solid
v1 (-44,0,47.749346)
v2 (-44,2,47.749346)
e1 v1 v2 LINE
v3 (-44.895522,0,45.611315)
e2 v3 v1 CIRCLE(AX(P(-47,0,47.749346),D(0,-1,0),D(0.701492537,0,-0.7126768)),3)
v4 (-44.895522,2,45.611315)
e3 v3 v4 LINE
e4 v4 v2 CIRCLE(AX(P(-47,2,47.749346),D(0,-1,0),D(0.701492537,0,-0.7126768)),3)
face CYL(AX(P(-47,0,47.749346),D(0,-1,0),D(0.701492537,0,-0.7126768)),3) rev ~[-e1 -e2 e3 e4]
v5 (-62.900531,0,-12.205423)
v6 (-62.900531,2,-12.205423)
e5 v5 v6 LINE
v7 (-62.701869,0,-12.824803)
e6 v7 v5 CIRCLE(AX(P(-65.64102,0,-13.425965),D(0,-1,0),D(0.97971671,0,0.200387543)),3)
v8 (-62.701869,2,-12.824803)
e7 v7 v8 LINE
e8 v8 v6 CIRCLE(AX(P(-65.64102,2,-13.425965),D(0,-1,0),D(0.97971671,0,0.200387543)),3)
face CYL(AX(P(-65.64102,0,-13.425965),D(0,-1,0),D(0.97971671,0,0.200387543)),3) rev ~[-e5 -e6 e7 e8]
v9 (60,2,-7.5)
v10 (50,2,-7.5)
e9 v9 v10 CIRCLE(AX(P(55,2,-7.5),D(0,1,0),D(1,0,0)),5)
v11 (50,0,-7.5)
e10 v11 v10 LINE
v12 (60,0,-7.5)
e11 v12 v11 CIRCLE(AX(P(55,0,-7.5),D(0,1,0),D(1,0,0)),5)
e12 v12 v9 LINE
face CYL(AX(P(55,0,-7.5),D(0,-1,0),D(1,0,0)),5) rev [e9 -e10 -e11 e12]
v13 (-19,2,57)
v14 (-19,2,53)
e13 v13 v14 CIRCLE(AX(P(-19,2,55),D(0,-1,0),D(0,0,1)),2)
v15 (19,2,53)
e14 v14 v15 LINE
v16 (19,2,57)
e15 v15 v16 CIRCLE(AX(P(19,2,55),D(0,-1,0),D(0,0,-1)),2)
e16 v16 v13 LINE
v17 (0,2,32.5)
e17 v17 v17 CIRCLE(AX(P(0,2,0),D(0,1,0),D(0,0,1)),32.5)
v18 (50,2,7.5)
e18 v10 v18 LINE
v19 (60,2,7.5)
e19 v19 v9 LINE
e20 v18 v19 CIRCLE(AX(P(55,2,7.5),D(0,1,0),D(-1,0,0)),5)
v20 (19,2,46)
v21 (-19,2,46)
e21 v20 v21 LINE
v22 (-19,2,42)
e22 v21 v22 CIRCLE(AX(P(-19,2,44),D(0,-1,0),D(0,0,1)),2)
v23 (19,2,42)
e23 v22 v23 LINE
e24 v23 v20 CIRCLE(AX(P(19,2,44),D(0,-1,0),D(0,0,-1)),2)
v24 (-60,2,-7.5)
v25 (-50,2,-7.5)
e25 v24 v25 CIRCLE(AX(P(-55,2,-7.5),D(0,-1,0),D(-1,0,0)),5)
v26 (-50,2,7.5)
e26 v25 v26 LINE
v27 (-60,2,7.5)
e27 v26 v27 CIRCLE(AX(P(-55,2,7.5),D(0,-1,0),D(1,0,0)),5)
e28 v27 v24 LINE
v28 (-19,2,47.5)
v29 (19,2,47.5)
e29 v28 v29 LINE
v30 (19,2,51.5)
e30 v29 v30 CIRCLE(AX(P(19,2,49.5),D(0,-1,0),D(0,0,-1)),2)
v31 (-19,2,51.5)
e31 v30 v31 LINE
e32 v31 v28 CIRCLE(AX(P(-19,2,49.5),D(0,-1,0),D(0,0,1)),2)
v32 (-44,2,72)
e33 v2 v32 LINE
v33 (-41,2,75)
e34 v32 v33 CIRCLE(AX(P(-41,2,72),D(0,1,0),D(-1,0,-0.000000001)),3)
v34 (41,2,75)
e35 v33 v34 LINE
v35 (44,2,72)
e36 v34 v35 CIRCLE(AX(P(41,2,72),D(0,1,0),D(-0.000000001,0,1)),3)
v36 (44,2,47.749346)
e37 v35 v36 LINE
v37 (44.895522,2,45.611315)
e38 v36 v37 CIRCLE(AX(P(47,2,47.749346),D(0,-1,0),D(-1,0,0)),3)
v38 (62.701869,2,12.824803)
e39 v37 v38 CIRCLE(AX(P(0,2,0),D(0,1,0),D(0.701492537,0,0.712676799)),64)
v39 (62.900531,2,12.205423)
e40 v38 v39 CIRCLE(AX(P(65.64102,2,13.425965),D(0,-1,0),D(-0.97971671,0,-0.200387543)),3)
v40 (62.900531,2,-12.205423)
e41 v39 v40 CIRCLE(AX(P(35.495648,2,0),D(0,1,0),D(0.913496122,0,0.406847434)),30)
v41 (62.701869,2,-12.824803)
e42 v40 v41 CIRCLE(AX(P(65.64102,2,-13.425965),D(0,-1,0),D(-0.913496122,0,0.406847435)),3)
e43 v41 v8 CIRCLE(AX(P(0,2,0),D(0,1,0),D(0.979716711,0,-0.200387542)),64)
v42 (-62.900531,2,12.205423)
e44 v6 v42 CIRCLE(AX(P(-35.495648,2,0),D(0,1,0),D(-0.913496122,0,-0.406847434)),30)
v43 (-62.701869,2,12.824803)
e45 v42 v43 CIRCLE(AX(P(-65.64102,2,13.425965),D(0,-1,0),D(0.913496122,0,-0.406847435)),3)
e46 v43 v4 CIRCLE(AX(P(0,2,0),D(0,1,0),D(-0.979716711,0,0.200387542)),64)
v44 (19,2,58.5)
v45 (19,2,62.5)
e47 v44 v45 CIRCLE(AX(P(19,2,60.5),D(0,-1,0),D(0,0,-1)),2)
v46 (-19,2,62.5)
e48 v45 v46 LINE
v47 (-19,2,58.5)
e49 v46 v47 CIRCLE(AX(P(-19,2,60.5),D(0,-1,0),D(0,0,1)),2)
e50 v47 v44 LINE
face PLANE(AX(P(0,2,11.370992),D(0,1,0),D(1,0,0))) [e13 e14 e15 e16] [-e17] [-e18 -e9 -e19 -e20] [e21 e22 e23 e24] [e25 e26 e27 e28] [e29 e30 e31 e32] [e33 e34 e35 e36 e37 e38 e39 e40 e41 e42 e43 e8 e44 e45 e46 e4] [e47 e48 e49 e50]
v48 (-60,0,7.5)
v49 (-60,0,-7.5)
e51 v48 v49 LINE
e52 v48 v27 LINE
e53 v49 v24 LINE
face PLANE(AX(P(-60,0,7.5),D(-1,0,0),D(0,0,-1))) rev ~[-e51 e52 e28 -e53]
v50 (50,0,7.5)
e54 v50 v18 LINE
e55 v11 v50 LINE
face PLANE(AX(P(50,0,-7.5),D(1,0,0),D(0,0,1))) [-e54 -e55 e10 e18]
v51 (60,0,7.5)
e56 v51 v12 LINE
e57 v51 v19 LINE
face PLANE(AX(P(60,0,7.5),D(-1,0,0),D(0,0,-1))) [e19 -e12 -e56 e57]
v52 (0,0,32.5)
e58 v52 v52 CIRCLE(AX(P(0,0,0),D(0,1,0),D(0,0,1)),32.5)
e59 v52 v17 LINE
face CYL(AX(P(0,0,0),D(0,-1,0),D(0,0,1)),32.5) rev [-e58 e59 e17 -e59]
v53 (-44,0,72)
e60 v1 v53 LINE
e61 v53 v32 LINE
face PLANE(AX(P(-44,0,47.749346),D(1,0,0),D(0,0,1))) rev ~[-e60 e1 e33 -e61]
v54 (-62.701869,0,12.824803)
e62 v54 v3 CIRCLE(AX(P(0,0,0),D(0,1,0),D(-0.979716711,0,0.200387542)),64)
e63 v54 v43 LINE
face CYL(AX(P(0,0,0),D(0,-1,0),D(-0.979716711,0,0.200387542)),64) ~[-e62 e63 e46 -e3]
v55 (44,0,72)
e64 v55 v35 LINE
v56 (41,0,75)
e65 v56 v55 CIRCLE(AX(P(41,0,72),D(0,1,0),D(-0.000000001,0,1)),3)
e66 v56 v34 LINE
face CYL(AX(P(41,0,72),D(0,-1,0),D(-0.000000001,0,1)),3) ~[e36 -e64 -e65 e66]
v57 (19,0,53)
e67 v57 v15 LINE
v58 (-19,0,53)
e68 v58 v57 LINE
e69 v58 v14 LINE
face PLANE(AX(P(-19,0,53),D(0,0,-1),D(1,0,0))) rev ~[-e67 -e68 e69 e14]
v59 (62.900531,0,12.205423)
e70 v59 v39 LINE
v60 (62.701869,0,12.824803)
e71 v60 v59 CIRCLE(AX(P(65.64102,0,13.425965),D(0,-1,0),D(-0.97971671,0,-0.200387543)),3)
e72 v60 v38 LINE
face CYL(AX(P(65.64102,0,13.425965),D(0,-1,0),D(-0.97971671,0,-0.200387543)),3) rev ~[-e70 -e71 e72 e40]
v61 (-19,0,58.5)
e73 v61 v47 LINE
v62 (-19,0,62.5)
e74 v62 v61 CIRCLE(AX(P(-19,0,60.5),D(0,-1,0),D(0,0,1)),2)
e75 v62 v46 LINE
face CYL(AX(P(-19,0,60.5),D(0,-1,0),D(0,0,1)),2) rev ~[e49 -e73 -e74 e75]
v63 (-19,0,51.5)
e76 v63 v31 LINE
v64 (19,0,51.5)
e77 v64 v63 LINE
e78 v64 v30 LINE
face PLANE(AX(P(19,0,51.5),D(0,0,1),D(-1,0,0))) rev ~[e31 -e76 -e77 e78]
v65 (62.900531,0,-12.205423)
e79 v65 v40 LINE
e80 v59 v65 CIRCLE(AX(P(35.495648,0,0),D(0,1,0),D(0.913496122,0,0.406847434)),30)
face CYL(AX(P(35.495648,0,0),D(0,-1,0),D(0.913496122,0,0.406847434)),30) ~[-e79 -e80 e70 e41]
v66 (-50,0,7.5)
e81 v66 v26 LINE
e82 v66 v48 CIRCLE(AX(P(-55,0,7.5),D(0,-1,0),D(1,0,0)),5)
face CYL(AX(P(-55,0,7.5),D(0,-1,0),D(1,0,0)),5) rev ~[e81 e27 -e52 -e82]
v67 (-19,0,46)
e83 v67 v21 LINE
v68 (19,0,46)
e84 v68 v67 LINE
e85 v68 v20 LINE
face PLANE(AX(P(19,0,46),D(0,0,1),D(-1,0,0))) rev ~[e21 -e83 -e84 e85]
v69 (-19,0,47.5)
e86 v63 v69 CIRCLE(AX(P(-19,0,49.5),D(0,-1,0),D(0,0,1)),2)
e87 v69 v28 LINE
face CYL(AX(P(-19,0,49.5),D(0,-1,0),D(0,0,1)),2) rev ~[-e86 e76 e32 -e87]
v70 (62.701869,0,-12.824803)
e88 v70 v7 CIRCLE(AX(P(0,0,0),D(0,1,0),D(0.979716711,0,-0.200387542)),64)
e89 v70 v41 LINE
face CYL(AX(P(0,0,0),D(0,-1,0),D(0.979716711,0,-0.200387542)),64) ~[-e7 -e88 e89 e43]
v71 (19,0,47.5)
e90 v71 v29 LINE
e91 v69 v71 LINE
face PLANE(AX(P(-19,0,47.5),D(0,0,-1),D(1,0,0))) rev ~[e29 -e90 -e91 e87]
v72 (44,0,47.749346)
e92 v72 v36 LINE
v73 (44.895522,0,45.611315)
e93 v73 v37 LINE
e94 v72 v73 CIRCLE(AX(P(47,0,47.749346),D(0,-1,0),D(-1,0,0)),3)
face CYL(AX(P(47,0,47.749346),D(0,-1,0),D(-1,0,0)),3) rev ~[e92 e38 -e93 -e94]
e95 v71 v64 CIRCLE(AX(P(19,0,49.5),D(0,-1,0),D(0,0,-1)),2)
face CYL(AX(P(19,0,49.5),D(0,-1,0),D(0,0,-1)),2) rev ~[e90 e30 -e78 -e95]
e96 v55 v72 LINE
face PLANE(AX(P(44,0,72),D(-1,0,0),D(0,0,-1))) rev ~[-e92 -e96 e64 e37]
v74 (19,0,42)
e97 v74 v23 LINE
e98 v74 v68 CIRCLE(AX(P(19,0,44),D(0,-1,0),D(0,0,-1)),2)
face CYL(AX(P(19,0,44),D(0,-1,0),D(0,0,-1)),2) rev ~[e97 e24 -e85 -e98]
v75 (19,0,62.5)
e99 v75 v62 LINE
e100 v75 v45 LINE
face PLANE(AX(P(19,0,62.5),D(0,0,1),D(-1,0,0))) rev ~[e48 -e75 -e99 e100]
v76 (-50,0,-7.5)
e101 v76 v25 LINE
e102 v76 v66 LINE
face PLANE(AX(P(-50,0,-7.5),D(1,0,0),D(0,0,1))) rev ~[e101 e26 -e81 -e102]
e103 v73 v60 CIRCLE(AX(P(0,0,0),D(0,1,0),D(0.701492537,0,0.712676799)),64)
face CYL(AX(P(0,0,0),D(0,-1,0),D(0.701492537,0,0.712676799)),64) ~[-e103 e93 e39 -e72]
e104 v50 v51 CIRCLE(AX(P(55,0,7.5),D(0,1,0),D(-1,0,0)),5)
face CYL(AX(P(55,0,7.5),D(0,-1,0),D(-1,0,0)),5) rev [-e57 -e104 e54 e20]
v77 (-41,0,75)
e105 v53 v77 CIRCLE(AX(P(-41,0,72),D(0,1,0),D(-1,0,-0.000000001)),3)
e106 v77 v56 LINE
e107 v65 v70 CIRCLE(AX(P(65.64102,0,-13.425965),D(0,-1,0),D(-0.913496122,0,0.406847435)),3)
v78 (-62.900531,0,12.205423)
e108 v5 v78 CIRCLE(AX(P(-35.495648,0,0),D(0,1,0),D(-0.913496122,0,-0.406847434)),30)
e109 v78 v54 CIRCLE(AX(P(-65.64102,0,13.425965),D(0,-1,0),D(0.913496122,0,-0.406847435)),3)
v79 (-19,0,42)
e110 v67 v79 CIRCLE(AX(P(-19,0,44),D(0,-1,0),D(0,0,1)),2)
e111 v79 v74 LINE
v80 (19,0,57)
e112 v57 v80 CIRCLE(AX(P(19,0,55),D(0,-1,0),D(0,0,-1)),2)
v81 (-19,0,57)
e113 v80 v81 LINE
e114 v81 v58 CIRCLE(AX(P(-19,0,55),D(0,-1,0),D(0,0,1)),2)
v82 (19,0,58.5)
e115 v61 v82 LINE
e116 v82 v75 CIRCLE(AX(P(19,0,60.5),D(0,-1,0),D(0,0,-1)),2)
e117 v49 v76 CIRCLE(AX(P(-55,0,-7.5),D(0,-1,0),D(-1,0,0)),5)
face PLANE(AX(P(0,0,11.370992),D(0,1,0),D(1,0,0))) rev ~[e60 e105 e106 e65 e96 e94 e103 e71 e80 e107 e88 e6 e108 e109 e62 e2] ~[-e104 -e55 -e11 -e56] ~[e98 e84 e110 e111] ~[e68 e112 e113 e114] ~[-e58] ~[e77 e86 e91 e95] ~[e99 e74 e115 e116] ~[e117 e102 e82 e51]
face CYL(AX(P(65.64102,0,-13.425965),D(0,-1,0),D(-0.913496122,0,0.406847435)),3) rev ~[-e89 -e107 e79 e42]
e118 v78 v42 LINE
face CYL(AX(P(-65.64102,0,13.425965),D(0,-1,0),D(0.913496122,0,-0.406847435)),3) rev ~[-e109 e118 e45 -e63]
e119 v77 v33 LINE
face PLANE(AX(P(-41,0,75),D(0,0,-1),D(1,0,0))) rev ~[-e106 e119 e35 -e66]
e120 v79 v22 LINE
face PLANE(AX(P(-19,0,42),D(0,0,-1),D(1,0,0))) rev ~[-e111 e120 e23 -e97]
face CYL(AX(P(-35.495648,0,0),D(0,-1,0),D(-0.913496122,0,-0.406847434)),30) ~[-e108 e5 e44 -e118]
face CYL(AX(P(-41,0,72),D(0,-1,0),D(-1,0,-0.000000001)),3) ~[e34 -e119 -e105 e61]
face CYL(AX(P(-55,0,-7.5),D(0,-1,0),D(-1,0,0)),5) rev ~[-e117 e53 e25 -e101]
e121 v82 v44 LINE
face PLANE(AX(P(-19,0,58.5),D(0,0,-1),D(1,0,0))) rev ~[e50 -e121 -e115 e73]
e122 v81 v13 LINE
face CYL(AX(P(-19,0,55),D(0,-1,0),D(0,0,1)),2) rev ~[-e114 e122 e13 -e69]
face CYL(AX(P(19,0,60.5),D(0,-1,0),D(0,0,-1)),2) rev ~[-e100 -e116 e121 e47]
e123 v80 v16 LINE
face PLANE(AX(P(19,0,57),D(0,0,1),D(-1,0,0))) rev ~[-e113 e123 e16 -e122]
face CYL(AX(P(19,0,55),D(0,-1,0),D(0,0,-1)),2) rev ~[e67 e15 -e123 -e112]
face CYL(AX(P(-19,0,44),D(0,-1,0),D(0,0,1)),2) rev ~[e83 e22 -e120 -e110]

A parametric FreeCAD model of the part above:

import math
import FreeCAD as App
import Part
import Sketcher
from FreeCAD import Vector
Q = App.Units.Quantity

doc = App.newDocument("Part")
body = doc.addObject("PartDesign::Body", "Body")

# Sketch on XZ plane
sketch1 = body.newObject("Sketcher::SketchObject", "Sketch")
sketch1.AttachmentSupport = (doc.getObject("XZ_Plane"), [""])
sketch1.MapMode = "FlatFace"
sketch1.addGeometry(Part.LineSegment(Vector(-41, 75, 0), Vector(41, 75, 0)), False)
sketch1.addGeometry(Part.ArcOfCircle(Part.Circle(Vector(41, 72, 0), Vector(0, 0, 1), 3), math.radians(0), math.radians(90)), False)
sketch1.addGeometry(Part.LineSegment(Vector(44, 72, 0), Vector(44, 47.749346, 0)), False)
sketch1.addGeometry(Part.ArcOfCircle(Part.Circle(Vector(47, 47.749346, 0), Vector(0, 0, 1), 3), math.radians(180), math.radians(225.453127)), False)
sketch1.addGeometry(Part.ArcOfCircle(Part.Circle(Vector(0, 0, 0), Vector(0, 0, 1), 64), math.radians(11.559622), math.radians(45.453127)), False)
sketch1.addGeometry(Part.ArcOfCircle(Part.Circle(Vector(65.64102, 13.425965, 0), Vector(0, 0, 1), 3), math.radians(-168.440378), math.radians(-155.993051)), False)
sketch1.addGeometry(Part.ArcOfCircle(Part.Circle(Vector(35.495648, 0, 0), Vector(0, 0, 1), 30), math.radians(-24.006949), math.radians(24.006949)), False)
sketch1.addGeometry(Part.ArcOfCircle(Part.Circle(Vector(65.64102, -13.425965, 0), Vector(0, 0, 1), 3), math.radians(155.993051), math.radians(168.440378)), False)
sketch1.addGeometry(Part.ArcOfCircle(Part.Circle(Vector(0, 0, 0), Vector(0, 0, 1), 64), math.radians(-168.440378), math.radians(-11.559622)), False)
sketch1.addGeometry(Part.ArcOfCircle(Part.Circle(Vector(-65.64102, -13.425965, 0), Vector(0, 0, 1), 3), math.radians(11.559622), math.radians(24.006949)), False)
sketch1.addGeometry(Part.ArcOfCircle(Part.Circle(Vector(-35.495648, 0, 0), Vector(0, 0, 1), 30), math.radians(155.993051), math.radians(204.006949)), False)
sketch1.addGeometry(Part.ArcOfCircle(Part.Circle(Vector(-65.64102, 13.425965, 0), Vector(0, 0, 1), 3), math.radians(-24.006949), math.radians(-11.559622)), False)
sketch1.addGeometry(Part.ArcOfCircle(Part.Circle(Vector(0, 0, 0), Vector(0, 0, 1), 64), math.radians(134.546873), math.radians(168.440378)), False)
sketch1.addGeometry(Part.ArcOfCircle(Part.Circle(Vector(-47, 47.749346, 0), Vector(0, 0, 1), 3), math.radians(-45.453127), math.radians(0)), False)
sketch1.addGeometry(Part.LineSegment(Vector(-44, 47.749346, 0), Vector(-44, 72, 0)), False)
sketch1.addGeometry(Part.ArcOfCircle(Part.Circle(Vector(-41, 72, 0), Vector(0, 0, 1), 3), math.radians(90), math.radians(180)), False)
sketch1.addGeometry(Part.ArcOfCircle(Part.Circle(Vector(-19, 60.5, 0), Vector(0, 0, 1), 2), math.radians(90), math.radians(270)), False)
sketch1.addGeometry(Part.LineSegment(Vector(-19, 58.5, 0), Vector(19, 58.5, 0)), False)
sketch1.addGeometry(Part.ArcOfCircle(Part.Circle(Vector(19, 60.5, 0), Vector(0, 0, 1), 2), math.radians(-90), math.radians(90)), False)
sketch1.addGeometry(Part.LineSegment(Vector(19, 62.5, 0), Vector(-19, 62.5, 0)), False)
sketch1.addGeometry(Part.ArcOfCircle(Part.Circle(Vector(-19, 55, 0), Vector(0, 0, 1), 2), math.radians(90), math.radians(270)), False)
sketch1.addGeometry(Part.LineSegment(Vector(-19, 53, 0), Vector(19, 53, 0)), False)
sketch1.addGeometry(Part.ArcOfCircle(Part.Circle(Vector(19, 55, 0), Vector(0, 0, 1), 2), math.radians(-90), math.radians(90)), False)
sketch1.addGeometry(Part.LineSegment(Vector(19, 57, 0), Vector(-19, 57, 0)), False)
sketch1.addGeometry(Part.ArcOfCircle(Part.Circle(Vector(-19, 49.5, 0), Vector(0, 0, 1), 2), math.radians(90), math.radians(270)), False)
sketch1.addGeometry(Part.LineSegment(Vector(-19, 47.5, 0), Vector(19, 47.5, 0)), False)
sketch1.addGeometry(Part.ArcOfCircle(Part.Circle(Vector(19, 49.5, 0), Vector(0, 0, 1), 2), math.radians(-90), math.radians(90)), False)
sketch1.addGeometry(Part.LineSegment(Vector(19, 51.5, 0), Vector(-19, 51.5, 0)), False)
sketch1.addGeometry(Part.ArcOfCircle(Part.Circle(Vector(-19, 44, 0), Vector(0, 0, 1), 2), math.radians(90), math.radians(270)), False)
sketch1.addGeometry(Part.LineSegment(Vector(-19, 42, 0), Vector(19, 42, 0)), False)
sketch1.addGeometry(Part.ArcOfCircle(Part.Circle(Vector(19, 44, 0), Vector(0, 0, 1), 2), math.radians(-90), math.radians(90)), False)
sketch1.addGeometry(Part.LineSegment(Vector(19, 46, 0), Vector(-19, 46, 0)), False)
sketch1.addGeometry(Part.ArcOfCircle(Part.Circle(Vector(-55, -7.5, 0), Vector(0, 0, 1), 5), math.radians(180), math.radians(360)), False)
sketch1.addGeometry(Part.LineSegment(Vector(-50, -7.5, 0), Vector(-50, 7.5, 0)), False)
sketch1.addGeometry(Part.ArcOfCircle(Part.Circle(Vector(-55, 7.5, 0), Vector(0, 0, 1), 5), math.radians(0), math.radians(180)), False)
sketch1.addGeometry(Part.LineSegment(Vector(-60, 7.5, 0), Vector(-60, -7.5, 0)), False)
sketch1.addGeometry(Part.Circle(Vector(0, 0, 0), Vector(0, 0, 1), 32.5), False)
sketch1.addGeometry(Part.LineSegment(Vector(50, 7.5, 0), Vector(50, -7.5, 0)), False)
sketch1.addGeometry(Part.ArcOfCircle(Part.Circle(Vector(55, -7.5, 0), Vector(0, 0, 1), 5), math.radians(180), math.radians(360)), False)
sketch1.addGeometry(Part.LineSegment(Vector(60, -7.5, 0), Vector(60, 7.5, 0)), False)
sketch1.addGeometry(Part.ArcOfCircle(Part.Circle(Vector(55, 7.5, 0), Vector(0, 0, 1), 5), math.radians(0), math.radians(180)), False)
sketch1.addConstraint(Sketcher.Constraint("Tangent", 0, 2, 1, 2))
sketch1.addConstraint(Sketcher.Constraint("Tangent", 1, 1, 2, 1))
sketch1.addConstraint(Sketcher.Constraint("Tangent", 2, 2, 3, 1))
sketch1.addConstraint(Sketcher.Constraint("Tangent", 3, 2, 4, 2))
sketch1.addConstraint(Sketcher.Constraint("Tangent", 4, 1, 5, 1))
sketch1.addConstraint(Sketcher.Constraint("Tangent", 5, 2, 6, 2))
sketch1.addConstraint(Sketcher.Constraint("Tangent", 6, 1, 7, 1))
sketch1.addConstraint(Sketcher.Constraint("Tangent", 7, 2, 8, 2))
sketch1.addConstraint(Sketcher.Constraint("Tangent", 8, 1, 9, 1))
sketch1.addConstraint(Sketcher.Constraint("Tangent", 9, 2, 10, 2))
sketch1.addConstraint(Sketcher.Constraint("Tangent", 10, 1, 11, 1))
sketch1.addConstraint(Sketcher.Constraint("Tangent", 11, 2, 12, 2))
sketch1.addConstraint(Sketcher.Constraint("Tangent", 12, 1, 13, 1))
sketch1.addConstraint(Sketcher.Constraint("Tangent", 13, 2, 14, 1))
sketch1.addConstraint(Sketcher.Constraint("Tangent", 14, 2, 15, 2))
sketch1.addConstraint(Sketcher.Constraint("Tangent", 15, 1, 0, 1))
sketch1.addConstraint(Sketcher.Constraint("Tangent", 16, 2, 17, 1))
sketch1.addConstraint(Sketcher.Constraint("Tangent", 17, 2, 18, 1))
sketch1.addConstraint(Sketcher.Constraint("Tangent", 18, 2, 19, 1))
sketch1.addConstraint(Sketcher.Constraint("Tangent", 19, 2, 16, 1))
sketch1.addConstraint(Sketcher.Constraint("Tangent", 20, 2, 21, 1))
sketch1.addConstraint(Sketcher.Constraint("Tangent", 21, 2, 22, 1))
sketch1.addConstraint(Sketcher.Constraint("Tangent", 22, 2, 23, 1))
sketch1.addConstraint(Sketcher.Constraint("Tangent", 23, 2, 20, 1))
sketch1.addConstraint(Sketcher.Constraint("Tangent", 24, 2, 25, 1))
sketch1.addConstraint(Sketcher.Constraint("Tangent", 25, 2, 26, 1))
sketch1.addConstraint(Sketcher.Constraint("Tangent", 26, 2, 27, 1))
sketch1.addConstraint(Sketcher.Constraint("Tangent", 27, 2, 24, 1))
sketch1.addConstraint(Sketcher.Constraint("Tangent", 28, 2, 29, 1))
sketch1.addConstraint(Sketcher.Constraint("Tangent", 29, 2, 30, 1))
sketch1.addConstraint(Sketcher.Constraint("Tangent", 30, 2, 31, 1))
sketch1.addConstraint(Sketcher.Constraint("Tangent", 31, 2, 28, 1))
sketch1.addConstraint(Sketcher.Constraint("Tangent", 32, 2, 33, 1))
sketch1.addConstraint(Sketcher.Constraint("Tangent", 33, 2, 34, 1))
sketch1.addConstraint(Sketcher.Constraint("Tangent", 34, 2, 35, 1))
sketch1.addConstraint(Sketcher.Constraint("Tangent", 35, 2, 32, 1))
sketch1.addConstraint(Sketcher.Constraint("Tangent", 37, 2, 38, 1))
sketch1.addConstraint(Sketcher.Constraint("Tangent", 38, 2, 39, 1))
sketch1.addConstraint(Sketcher.Constraint("Tangent", 39, 2, 40, 1))
sketch1.addConstraint(Sketcher.Constraint("Tangent", 40, 2, 37, 1))
sketch1.addConstraint(Sketcher.Constraint("Horizontal", 0))
sketch1.addConstraint(Sketcher.Constraint("Vertical", 2))
sketch1.addConstraint(Sketcher.Constraint("Vertical", 14))
sketch1.addConstraint(Sketcher.Constraint("Horizontal", 17))
sketch1.addConstraint(Sketcher.Constraint("Horizontal", 19))
sketch1.addConstraint(Sketcher.Constraint("Horizontal", 21))
sketch1.addConstraint(Sketcher.Constraint("Horizontal", 23))
sketch1.addConstraint(Sketcher.Constraint("Horizontal", 25))
sketch1.addConstraint(Sketcher.Constraint("Horizontal", 27))
sketch1.addConstraint(Sketcher.Constraint("Horizontal", 29))
sketch1.addConstraint(Sketcher.Constraint("Horizontal", 31))
sketch1.addConstraint(Sketcher.Constraint("Vertical", 33))
sketch1.addConstraint(Sketcher.Constraint("Vertical", 35))
sketch1.addConstraint(Sketcher.Constraint("Vertical", 37))
sketch1.addConstraint(Sketcher.Constraint("Vertical", 39))
sketch1.addConstraint(Sketcher.Constraint("Coincident", 4, 3, -1, 1))
sketch1.addConstraint(Sketcher.Constraint("Coincident", 8, 3, -1, 1))
sketch1.addConstraint(Sketcher.Constraint("Coincident", 12, 3, -1, 1))
sketch1.addConstraint(Sketcher.Constraint("Coincident", 36, 3, -1, 1))
sketch1.addConstraint(Sketcher.Constraint("Equal", 1, 3))
sketch1.addConstraint(Sketcher.Constraint("Equal", 3, 5))
sketch1.addConstraint(Sketcher.Constraint("Equal", 5, 7))
sketch1.addConstraint(Sketcher.Constraint("Equal", 4, 8))
sketch1.addConstraint(Sketcher.Constraint("Equal", 7, 9))
sketch1.addConstraint(Sketcher.Constraint("Equal", 6, 10))
sketch1.addConstraint(Sketcher.Constraint("Equal", 9, 11))
sketch1.addConstraint(Sketcher.Constraint("Equal", 8, 12))
sketch1.addConstraint(Sketcher.Constraint("Equal", 11, 13))
sketch1.addConstraint(Sketcher.Constraint("Equal", 13, 15))
sketch1.addConstraint(Sketcher.Constraint("Equal", 18, 20))
sketch1.addConstraint(Sketcher.Constraint("Equal", 22, 24))
sketch1.addConstraint(Sketcher.Constraint("Equal", 26, 28))
sketch1.addConstraint(Sketcher.Constraint("Equal", 34, 38))
sketch1.addConstraint(Sketcher.Constraint("Symmetric", 6, 3, 10, 3, -1, 1))
sketch1.addConstraint(Sketcher.Constraint("Symmetric", 34, 3, 38, 3, -1, 1))
sketch1.addConstraint(Sketcher.Constraint("PointOnObject", 6, 3, -1))
sketch1.addConstraint(Sketcher.Constraint("Horizontal", 3, 3, 13, 3))
sketch1.addConstraint(Sketcher.Constraint("Horizontal", 32, 3, 38, 3))
sketch1.addConstraint(Sketcher.Constraint("Horizontal", 34, 3, 40, 3))
sketch1.addConstraint(Sketcher.Constraint("Vertical", 16, 3, 20, 3))
sketch1.addConstraint(Sketcher.Constraint("Vertical", 18, 3, 22, 3))
sketch1.addConstraint(Sketcher.Constraint("Vertical", 20, 3, 24, 3))
sketch1.addConstraint(Sketcher.Constraint("Vertical", 22, 3, 26, 3))
sketch1.addConstraint(Sketcher.Constraint("Vertical", 24, 3, 28, 3))
sketch1.addConstraint(Sketcher.Constraint("Vertical", 26, 3, 30, 3))
sketch1.addConstraint(Sketcher.Constraint("Diameter", 36, Q("65 mm")))
sketch1.addConstraint(Sketcher.Constraint("Radius", 1, Q("3 mm")))
sketch1.addConstraint(Sketcher.Constraint("Radius", 4, Q("64 mm")))
sketch1.addConstraint(Sketcher.Constraint("Radius", 6, Q("30 mm")))
sketch1.addConstraint(Sketcher.Constraint("Radius", 16, Q("2 mm")))
sketch1.addConstraint(Sketcher.Constraint("Radius", 32, Q("5 mm")))
sketch1.addConstraint(Sketcher.Constraint("DistanceX", 0, 1, 0, 2, Q("82 mm")))
sketch1.addConstraint(Sketcher.Constraint("DistanceX", 17, 1, 17, 2, Q("38 mm")))
sketch1.addConstraint(Sketcher.Constraint("DistanceY", 33, 1, 33, 2, Q("15 mm")))
sketch1.addConstraint(Sketcher.Constraint("DistanceY", -1, 1, 1, 3, Q("72 mm")))
sketch1.addConstraint(Sketcher.Constraint("DistanceX", 16, 3, -1, 1, Q("19 mm")))
sketch1.addConstraint(Sketcher.Constraint("DistanceY", -1, 1, 20, 3, Q("55 mm")))
sketch1.addConstraint(Sketcher.Constraint("DistanceY", -1, 1, 28, 3, Q("44 mm")))
sketch1.addConstraint(Sketcher.Constraint("DistanceX", 32, 3, -1, 1, Q("55 mm")))
sketch1.addConstraint(Sketcher.Constraint("DistanceY", -1, 1, 16, 3, Q("60.5 mm")))
sketch1.addConstraint(Sketcher.Constraint("DistanceY", -1, 1, 24, 3, Q("49.5 mm")))
sketch1.addConstraint(Sketcher.Constraint("DistanceX", -1, 1, 5, 3, Q("65.64102 mm")))
pad1 = body.newObject("PartDesign::Pad", "Pad")
pad1.Profile = sketch1
pad1.Length = 2
pad1.Reversed = True

doc.recompute()
